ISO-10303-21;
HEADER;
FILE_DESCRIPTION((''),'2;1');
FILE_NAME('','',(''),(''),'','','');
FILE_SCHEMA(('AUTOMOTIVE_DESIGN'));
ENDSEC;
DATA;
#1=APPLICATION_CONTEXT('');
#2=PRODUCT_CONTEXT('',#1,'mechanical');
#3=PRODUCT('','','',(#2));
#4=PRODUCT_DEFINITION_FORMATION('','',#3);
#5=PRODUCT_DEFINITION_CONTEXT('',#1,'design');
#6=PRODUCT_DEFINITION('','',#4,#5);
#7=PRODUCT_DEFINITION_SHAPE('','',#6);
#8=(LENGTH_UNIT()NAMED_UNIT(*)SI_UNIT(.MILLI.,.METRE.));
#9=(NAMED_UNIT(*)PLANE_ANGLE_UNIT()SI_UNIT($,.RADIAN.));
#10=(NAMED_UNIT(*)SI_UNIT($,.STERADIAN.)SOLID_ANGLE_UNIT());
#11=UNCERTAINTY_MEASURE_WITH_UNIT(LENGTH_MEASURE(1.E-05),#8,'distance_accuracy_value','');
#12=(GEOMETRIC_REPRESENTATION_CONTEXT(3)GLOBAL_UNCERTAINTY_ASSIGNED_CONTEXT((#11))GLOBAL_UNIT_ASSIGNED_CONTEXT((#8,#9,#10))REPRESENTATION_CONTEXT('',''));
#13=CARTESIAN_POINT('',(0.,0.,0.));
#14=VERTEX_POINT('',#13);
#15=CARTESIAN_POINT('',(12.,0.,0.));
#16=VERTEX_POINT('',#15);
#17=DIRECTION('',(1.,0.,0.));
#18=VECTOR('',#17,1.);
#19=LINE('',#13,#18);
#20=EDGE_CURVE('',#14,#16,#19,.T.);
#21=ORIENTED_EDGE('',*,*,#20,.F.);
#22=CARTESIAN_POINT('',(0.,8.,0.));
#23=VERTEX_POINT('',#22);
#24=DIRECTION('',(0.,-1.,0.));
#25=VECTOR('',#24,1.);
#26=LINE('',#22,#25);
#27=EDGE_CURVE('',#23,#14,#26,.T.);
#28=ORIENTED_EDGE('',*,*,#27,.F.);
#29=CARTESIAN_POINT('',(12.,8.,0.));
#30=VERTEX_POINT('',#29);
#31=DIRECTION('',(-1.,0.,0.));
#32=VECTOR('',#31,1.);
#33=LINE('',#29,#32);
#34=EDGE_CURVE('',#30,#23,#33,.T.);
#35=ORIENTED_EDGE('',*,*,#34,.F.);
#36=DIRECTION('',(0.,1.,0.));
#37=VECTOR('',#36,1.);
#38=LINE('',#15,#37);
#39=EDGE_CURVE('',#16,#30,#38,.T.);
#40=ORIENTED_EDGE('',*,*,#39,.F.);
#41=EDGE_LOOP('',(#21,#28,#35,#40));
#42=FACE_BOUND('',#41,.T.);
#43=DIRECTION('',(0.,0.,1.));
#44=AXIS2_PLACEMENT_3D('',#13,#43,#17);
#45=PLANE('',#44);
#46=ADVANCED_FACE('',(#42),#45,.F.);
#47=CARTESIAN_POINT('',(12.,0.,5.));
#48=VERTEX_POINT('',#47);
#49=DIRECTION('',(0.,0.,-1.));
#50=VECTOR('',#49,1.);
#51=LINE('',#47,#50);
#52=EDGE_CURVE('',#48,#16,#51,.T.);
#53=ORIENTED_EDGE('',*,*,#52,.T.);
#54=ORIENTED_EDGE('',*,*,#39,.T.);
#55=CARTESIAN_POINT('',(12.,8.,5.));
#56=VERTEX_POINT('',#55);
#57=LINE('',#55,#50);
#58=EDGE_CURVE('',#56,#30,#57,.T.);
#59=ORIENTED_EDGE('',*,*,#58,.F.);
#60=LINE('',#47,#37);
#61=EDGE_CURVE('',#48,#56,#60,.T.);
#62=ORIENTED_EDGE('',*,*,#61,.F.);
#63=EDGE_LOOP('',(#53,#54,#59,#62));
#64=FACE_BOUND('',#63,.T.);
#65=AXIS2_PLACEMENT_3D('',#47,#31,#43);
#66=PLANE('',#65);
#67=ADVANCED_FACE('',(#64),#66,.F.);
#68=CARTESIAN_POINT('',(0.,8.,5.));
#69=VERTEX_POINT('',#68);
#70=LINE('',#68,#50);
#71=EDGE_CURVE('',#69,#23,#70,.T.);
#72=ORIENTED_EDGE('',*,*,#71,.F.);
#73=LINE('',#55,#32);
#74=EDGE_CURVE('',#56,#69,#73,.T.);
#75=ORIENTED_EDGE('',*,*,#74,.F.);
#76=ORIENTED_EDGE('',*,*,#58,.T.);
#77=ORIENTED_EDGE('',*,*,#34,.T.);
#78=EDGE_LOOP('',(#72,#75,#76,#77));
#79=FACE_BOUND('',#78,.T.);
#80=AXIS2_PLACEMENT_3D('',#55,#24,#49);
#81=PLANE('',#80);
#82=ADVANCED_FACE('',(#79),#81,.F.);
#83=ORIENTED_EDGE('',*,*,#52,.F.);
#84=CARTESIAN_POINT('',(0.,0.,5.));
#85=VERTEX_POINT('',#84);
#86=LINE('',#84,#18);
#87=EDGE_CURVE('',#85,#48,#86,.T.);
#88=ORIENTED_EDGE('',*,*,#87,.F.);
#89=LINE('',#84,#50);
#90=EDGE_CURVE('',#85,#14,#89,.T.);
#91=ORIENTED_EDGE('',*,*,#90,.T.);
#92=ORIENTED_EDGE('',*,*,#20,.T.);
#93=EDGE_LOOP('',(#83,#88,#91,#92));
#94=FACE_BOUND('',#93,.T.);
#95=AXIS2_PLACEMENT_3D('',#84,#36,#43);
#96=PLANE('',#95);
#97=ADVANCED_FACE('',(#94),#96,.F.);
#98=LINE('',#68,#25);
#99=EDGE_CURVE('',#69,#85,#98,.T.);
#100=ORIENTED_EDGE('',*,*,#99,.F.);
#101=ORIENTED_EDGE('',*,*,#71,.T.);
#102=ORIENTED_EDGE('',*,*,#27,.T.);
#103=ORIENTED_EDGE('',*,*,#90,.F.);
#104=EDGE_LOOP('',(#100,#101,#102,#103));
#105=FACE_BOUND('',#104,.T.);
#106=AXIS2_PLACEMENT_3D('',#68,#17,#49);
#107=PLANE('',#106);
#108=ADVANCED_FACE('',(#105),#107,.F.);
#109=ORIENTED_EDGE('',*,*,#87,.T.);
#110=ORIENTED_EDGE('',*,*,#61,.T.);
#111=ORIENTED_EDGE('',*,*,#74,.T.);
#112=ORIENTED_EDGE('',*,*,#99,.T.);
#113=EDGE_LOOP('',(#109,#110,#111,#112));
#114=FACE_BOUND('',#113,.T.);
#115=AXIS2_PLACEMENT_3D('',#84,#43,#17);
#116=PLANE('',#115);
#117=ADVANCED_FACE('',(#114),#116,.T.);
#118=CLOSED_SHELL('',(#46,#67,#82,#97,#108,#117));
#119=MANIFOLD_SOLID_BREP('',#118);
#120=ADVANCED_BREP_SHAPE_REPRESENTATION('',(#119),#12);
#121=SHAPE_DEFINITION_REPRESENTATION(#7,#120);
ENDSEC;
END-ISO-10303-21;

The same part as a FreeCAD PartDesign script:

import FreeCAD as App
import Part
import Sketcher

V = App.Vector


def add_polygon(sketch, points):
    """Adds a closed chain of lines whose ends are joined by coincident constraints."""
    first, n = sketch.GeometryCount, len(points)
    for a, b in zip(points, points[1:] + points[:1]):
        sketch.addGeometry(Part.LineSegment(App.Vector(*a, 0), App.Vector(*b, 0)), False)
    for i in range(n):
        sketch.addConstraint(Sketcher.Constraint("Coincident", first + i, 2, first + (i + 1) % n, 1))

doc = App.newDocument("Part")
params = doc.addObject("Spreadsheet::Sheet", "Params")
for row, (alias, value) in enumerate([
    ("sketch1_width", "12 mm"),
    ("sketch1_height", "8 mm"),
    ("pad1_length", "5 mm"),
], start=1):
    params.set(f"A{row}", alias)
    params.set(f"B{row}", "=" + value)
    params.setAlias(f"B{row}", alias)

body = doc.addObject("PartDesign::Body", "Body")

sketch1 = body.newObject("Sketcher::SketchObject", "Sketch")
sketch1.AttachmentSupport = (doc.getObject("XY_Plane"), [""])
sketch1.MapMode = "FlatFace"
add_polygon(sketch1, [(0, 8), (0, 0), (12, 0), (12, 8)])
sketch1.addConstraint(Sketcher.Constraint("Vertical", 0))
sketch1.addConstraint(Sketcher.Constraint("Horizontal", 1))
sketch1.addConstraint(Sketcher.Constraint("Vertical", 2))
sketch1.addConstraint(Sketcher.Constraint("Horizontal", 3))
sketch1.addConstraint(Sketcher.Constraint("Coincident", 0, 2, -1, 1))
sketch1.addConstraint(Sketcher.Constraint("DistanceX", 1, 1, 1, 2, 12.0))
sketch1.addConstraint(Sketcher.Constraint("DistanceY", 0, 2, 0, 1, 8.0))
sketch1.setExpression("Constraints[9]", "Params.sketch1_width")
sketch1.setExpression("Constraints[10]", "Params.sketch1_height")
pad1 = body.newObject("PartDesign::Pad", "Pad")
pad1.Profile = sketch1
pad1.setExpression("Length", "Params.pad1_length")

doc.recompute()
